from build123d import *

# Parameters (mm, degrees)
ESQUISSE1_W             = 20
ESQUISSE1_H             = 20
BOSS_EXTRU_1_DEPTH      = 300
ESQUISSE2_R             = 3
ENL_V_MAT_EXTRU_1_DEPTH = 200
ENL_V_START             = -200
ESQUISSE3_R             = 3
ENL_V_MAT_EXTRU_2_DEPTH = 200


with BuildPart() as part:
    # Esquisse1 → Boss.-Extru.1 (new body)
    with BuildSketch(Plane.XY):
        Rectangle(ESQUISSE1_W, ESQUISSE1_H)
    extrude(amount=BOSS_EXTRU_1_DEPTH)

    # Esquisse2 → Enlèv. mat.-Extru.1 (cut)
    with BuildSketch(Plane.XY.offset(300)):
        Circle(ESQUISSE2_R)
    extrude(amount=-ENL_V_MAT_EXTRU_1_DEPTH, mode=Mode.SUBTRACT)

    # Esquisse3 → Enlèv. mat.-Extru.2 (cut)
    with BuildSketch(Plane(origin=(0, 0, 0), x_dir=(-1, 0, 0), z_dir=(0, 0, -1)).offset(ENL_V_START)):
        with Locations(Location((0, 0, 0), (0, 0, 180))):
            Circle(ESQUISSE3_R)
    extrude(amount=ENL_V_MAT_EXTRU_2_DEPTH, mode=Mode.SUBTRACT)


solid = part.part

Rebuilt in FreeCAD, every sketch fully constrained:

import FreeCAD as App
import Part
import Sketcher
from FreeCAD import Vector
Q = App.Units.Quantity

doc = App.newDocument("Part")
body = doc.addObject("PartDesign::Body", "Body")

sketch1 = body.newObject("Sketcher::SketchObject", "Sketch")
sketch1.AttachmentSupport = (doc.getObject("XY_Plane"), [""])
sketch1.MapMode = "FlatFace"
sketch1.addGeometry([
    Part.LineSegment(Vector(-10, 10, 0), Vector(-10, -10, 0)),
    Part.LineSegment(Vector(-10, -10, 0), Vector(10, -10, 0)),
    Part.LineSegment(Vector(10, -10, 0), Vector(10, 10, 0)),
    Part.LineSegment(Vector(10, 10, 0), Vector(-10, 10, 0)),
], False)
sketch1.addConstraint([
    Sketcher.Constraint("Coincident", 0, 2, 1, 1),
    Sketcher.Constraint("Coincident", 1, 2, 2, 1),
    Sketcher.Constraint("Coincident", 2, 2, 3, 1),
    Sketcher.Constraint("Coincident", 3, 2, 0, 1),
    Sketcher.Constraint("Vertical", 0),
    Sketcher.Constraint("Horizontal", 1),
    Sketcher.Constraint("Vertical", 2),
    Sketcher.Constraint("Horizontal", 3),
    Sketcher.Constraint("Symmetric", 0, 2, 2, 2, -1, 1),
    Sketcher.Constraint("Equal", 3, 0),
    Sketcher.Constraint("DistanceX", 1, 1, 1, 2, Q("20 mm")),
])
pad1 = body.newObject("PartDesign::Pad", "Pad")
pad1.Profile = sketch1
pad1.Length = 300

sketch2 = body.newObject("Sketcher::SketchObject", "Sketch001")
sketch2.AttachmentSupport = (doc.getObject("XY_Plane"), [""])
sketch2.MapMode = "FlatFace"
sketch2.AttachmentOffset = App.Placement(Vector(0, 0, 300), App.Rotation())
sketch2.addGeometry(Part.Circle(Vector(0, 0, 0), Vector(0, 0, 1), 3), False)
sketch2.addConstraint([
    Sketcher.Constraint("Coincident", 0, 3, -1, 1),
    Sketcher.Constraint("Diameter", 0, Q("6 mm")),
])
pocket1 = body.newObject("PartDesign::Pocket", "Pocket")
pocket1.Profile = sketch2
pocket1.Length = 200

sketch3 = body.newObject("Sketcher::SketchObject", "Sketch002")
sketch3.AttachmentSupport = (doc.getObject("XY_Plane"), [""])
sketch3.MapMode = "FlatFace"
sketch3.AttachmentOffset = App.Placement(Vector(0, 0, 200), App.Rotation())
sketch3.addGeometry(Part.Circle(Vector(0, 0, 0), Vector(0, 0, 1), 3), False)
sketch3.addConstraint([
    Sketcher.Constraint("Coincident", 0, 3, -1, 1),
    Sketcher.Constraint("Diameter", 0, Q("6 mm")),
])
pocket2 = body.newObject("PartDesign::Pocket", "Pocket001")
pocket2.Profile = sketch3
pocket2.Length = 200

doc.recompute()
